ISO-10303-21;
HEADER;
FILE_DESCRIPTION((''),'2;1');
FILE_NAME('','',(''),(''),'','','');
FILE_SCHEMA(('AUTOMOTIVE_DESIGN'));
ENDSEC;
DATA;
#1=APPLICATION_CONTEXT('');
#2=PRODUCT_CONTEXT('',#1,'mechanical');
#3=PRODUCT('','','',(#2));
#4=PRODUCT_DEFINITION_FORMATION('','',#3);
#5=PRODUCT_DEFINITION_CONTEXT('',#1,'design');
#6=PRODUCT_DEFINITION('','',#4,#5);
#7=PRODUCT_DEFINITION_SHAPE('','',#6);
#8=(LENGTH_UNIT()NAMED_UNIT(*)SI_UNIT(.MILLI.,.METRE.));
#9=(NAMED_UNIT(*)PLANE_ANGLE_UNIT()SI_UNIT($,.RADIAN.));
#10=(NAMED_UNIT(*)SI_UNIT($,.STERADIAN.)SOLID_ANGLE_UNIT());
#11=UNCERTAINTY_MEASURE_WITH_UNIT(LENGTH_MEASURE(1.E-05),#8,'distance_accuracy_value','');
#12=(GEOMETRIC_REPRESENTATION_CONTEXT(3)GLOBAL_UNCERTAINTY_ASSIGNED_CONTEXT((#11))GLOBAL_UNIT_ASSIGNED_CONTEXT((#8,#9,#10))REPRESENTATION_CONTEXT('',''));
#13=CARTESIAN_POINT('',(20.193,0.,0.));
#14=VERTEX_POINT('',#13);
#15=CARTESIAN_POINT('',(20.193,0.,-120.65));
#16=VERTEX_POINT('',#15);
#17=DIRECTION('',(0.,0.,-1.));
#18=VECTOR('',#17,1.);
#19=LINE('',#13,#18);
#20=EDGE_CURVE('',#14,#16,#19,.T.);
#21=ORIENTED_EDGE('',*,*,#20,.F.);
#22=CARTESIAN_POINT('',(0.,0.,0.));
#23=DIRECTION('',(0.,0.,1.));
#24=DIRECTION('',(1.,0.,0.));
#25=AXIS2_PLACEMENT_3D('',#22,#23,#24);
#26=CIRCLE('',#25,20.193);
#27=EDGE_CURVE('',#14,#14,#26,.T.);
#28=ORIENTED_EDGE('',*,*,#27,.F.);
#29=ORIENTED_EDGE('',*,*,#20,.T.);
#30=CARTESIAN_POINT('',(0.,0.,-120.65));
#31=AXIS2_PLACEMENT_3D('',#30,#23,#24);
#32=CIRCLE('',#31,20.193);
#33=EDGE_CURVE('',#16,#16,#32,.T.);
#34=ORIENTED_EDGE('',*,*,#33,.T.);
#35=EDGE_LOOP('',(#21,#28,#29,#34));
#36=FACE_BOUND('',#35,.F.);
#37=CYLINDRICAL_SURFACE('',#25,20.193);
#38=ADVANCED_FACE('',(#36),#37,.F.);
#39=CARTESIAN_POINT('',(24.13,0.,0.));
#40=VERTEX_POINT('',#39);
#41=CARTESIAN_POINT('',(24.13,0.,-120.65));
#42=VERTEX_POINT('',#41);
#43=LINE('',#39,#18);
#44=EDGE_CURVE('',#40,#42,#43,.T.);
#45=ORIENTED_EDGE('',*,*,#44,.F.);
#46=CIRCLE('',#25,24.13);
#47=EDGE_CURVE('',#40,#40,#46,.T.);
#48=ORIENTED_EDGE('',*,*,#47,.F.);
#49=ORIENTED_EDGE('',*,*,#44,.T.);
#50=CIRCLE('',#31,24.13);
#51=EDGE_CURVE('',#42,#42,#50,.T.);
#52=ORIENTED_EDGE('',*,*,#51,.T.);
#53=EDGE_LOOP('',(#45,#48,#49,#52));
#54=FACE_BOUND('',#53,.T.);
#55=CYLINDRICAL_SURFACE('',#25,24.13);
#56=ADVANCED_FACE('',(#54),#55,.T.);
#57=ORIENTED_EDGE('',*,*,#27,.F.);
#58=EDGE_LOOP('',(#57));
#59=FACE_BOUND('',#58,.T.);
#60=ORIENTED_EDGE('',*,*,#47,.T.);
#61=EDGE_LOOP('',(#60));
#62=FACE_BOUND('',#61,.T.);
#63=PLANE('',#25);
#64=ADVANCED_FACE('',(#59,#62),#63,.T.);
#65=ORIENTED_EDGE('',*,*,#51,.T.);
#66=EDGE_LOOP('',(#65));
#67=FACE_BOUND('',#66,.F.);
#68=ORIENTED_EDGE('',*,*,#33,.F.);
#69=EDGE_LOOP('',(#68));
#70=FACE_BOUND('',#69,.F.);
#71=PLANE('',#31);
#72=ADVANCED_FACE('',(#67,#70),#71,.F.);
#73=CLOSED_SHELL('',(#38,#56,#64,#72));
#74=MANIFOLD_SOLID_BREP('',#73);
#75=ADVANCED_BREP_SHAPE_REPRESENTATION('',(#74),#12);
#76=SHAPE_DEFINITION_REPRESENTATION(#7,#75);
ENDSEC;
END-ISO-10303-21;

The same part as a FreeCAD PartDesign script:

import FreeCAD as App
import Part
import Sketcher
from FreeCAD import Vector
Q = App.Units.Quantity

doc = App.newDocument("Part")
body = doc.addObject("PartDesign::Body", "Body")

# Sketch on XY plane
sketch1 = doc.addObject("Sketcher::SketchObject", "Sketch")
body.addObject(sketch1)
sketch1.AttachmentSupport = (doc.XY_Plane, [""])
sketch1.MapMode = "FlatFace"
sketch1.addGeometry(Part.Circle(Vector(0, 0, 0), Vector(0, 0, 1), 24), False)
sketch1.addGeometry(Part.Circle(Vector(0, 0, 0), Vector(0, 0, 1), 20), False)
sketch1.addConstraint(Sketcher.Constraint("Coincident", 0, 3, -1, 1))
sketch1.addConstraint(Sketcher.Constraint("Coincident", 1, 3, -1, 1))
sketch1.addConstraint(Sketcher.Constraint("Diameter", 0, Q("1.9 in")))
sketch1.addConstraint(Sketcher.Constraint("Diameter", 1, Q("1.59 in")))
pad1 = doc.addObject("PartDesign::Pad", "Pad")
body.addObject(pad1)
pad1.Profile = sketch1
pad1.Length = Q("4.75 in")
pad1.Reversed = True

doc.recompute()
